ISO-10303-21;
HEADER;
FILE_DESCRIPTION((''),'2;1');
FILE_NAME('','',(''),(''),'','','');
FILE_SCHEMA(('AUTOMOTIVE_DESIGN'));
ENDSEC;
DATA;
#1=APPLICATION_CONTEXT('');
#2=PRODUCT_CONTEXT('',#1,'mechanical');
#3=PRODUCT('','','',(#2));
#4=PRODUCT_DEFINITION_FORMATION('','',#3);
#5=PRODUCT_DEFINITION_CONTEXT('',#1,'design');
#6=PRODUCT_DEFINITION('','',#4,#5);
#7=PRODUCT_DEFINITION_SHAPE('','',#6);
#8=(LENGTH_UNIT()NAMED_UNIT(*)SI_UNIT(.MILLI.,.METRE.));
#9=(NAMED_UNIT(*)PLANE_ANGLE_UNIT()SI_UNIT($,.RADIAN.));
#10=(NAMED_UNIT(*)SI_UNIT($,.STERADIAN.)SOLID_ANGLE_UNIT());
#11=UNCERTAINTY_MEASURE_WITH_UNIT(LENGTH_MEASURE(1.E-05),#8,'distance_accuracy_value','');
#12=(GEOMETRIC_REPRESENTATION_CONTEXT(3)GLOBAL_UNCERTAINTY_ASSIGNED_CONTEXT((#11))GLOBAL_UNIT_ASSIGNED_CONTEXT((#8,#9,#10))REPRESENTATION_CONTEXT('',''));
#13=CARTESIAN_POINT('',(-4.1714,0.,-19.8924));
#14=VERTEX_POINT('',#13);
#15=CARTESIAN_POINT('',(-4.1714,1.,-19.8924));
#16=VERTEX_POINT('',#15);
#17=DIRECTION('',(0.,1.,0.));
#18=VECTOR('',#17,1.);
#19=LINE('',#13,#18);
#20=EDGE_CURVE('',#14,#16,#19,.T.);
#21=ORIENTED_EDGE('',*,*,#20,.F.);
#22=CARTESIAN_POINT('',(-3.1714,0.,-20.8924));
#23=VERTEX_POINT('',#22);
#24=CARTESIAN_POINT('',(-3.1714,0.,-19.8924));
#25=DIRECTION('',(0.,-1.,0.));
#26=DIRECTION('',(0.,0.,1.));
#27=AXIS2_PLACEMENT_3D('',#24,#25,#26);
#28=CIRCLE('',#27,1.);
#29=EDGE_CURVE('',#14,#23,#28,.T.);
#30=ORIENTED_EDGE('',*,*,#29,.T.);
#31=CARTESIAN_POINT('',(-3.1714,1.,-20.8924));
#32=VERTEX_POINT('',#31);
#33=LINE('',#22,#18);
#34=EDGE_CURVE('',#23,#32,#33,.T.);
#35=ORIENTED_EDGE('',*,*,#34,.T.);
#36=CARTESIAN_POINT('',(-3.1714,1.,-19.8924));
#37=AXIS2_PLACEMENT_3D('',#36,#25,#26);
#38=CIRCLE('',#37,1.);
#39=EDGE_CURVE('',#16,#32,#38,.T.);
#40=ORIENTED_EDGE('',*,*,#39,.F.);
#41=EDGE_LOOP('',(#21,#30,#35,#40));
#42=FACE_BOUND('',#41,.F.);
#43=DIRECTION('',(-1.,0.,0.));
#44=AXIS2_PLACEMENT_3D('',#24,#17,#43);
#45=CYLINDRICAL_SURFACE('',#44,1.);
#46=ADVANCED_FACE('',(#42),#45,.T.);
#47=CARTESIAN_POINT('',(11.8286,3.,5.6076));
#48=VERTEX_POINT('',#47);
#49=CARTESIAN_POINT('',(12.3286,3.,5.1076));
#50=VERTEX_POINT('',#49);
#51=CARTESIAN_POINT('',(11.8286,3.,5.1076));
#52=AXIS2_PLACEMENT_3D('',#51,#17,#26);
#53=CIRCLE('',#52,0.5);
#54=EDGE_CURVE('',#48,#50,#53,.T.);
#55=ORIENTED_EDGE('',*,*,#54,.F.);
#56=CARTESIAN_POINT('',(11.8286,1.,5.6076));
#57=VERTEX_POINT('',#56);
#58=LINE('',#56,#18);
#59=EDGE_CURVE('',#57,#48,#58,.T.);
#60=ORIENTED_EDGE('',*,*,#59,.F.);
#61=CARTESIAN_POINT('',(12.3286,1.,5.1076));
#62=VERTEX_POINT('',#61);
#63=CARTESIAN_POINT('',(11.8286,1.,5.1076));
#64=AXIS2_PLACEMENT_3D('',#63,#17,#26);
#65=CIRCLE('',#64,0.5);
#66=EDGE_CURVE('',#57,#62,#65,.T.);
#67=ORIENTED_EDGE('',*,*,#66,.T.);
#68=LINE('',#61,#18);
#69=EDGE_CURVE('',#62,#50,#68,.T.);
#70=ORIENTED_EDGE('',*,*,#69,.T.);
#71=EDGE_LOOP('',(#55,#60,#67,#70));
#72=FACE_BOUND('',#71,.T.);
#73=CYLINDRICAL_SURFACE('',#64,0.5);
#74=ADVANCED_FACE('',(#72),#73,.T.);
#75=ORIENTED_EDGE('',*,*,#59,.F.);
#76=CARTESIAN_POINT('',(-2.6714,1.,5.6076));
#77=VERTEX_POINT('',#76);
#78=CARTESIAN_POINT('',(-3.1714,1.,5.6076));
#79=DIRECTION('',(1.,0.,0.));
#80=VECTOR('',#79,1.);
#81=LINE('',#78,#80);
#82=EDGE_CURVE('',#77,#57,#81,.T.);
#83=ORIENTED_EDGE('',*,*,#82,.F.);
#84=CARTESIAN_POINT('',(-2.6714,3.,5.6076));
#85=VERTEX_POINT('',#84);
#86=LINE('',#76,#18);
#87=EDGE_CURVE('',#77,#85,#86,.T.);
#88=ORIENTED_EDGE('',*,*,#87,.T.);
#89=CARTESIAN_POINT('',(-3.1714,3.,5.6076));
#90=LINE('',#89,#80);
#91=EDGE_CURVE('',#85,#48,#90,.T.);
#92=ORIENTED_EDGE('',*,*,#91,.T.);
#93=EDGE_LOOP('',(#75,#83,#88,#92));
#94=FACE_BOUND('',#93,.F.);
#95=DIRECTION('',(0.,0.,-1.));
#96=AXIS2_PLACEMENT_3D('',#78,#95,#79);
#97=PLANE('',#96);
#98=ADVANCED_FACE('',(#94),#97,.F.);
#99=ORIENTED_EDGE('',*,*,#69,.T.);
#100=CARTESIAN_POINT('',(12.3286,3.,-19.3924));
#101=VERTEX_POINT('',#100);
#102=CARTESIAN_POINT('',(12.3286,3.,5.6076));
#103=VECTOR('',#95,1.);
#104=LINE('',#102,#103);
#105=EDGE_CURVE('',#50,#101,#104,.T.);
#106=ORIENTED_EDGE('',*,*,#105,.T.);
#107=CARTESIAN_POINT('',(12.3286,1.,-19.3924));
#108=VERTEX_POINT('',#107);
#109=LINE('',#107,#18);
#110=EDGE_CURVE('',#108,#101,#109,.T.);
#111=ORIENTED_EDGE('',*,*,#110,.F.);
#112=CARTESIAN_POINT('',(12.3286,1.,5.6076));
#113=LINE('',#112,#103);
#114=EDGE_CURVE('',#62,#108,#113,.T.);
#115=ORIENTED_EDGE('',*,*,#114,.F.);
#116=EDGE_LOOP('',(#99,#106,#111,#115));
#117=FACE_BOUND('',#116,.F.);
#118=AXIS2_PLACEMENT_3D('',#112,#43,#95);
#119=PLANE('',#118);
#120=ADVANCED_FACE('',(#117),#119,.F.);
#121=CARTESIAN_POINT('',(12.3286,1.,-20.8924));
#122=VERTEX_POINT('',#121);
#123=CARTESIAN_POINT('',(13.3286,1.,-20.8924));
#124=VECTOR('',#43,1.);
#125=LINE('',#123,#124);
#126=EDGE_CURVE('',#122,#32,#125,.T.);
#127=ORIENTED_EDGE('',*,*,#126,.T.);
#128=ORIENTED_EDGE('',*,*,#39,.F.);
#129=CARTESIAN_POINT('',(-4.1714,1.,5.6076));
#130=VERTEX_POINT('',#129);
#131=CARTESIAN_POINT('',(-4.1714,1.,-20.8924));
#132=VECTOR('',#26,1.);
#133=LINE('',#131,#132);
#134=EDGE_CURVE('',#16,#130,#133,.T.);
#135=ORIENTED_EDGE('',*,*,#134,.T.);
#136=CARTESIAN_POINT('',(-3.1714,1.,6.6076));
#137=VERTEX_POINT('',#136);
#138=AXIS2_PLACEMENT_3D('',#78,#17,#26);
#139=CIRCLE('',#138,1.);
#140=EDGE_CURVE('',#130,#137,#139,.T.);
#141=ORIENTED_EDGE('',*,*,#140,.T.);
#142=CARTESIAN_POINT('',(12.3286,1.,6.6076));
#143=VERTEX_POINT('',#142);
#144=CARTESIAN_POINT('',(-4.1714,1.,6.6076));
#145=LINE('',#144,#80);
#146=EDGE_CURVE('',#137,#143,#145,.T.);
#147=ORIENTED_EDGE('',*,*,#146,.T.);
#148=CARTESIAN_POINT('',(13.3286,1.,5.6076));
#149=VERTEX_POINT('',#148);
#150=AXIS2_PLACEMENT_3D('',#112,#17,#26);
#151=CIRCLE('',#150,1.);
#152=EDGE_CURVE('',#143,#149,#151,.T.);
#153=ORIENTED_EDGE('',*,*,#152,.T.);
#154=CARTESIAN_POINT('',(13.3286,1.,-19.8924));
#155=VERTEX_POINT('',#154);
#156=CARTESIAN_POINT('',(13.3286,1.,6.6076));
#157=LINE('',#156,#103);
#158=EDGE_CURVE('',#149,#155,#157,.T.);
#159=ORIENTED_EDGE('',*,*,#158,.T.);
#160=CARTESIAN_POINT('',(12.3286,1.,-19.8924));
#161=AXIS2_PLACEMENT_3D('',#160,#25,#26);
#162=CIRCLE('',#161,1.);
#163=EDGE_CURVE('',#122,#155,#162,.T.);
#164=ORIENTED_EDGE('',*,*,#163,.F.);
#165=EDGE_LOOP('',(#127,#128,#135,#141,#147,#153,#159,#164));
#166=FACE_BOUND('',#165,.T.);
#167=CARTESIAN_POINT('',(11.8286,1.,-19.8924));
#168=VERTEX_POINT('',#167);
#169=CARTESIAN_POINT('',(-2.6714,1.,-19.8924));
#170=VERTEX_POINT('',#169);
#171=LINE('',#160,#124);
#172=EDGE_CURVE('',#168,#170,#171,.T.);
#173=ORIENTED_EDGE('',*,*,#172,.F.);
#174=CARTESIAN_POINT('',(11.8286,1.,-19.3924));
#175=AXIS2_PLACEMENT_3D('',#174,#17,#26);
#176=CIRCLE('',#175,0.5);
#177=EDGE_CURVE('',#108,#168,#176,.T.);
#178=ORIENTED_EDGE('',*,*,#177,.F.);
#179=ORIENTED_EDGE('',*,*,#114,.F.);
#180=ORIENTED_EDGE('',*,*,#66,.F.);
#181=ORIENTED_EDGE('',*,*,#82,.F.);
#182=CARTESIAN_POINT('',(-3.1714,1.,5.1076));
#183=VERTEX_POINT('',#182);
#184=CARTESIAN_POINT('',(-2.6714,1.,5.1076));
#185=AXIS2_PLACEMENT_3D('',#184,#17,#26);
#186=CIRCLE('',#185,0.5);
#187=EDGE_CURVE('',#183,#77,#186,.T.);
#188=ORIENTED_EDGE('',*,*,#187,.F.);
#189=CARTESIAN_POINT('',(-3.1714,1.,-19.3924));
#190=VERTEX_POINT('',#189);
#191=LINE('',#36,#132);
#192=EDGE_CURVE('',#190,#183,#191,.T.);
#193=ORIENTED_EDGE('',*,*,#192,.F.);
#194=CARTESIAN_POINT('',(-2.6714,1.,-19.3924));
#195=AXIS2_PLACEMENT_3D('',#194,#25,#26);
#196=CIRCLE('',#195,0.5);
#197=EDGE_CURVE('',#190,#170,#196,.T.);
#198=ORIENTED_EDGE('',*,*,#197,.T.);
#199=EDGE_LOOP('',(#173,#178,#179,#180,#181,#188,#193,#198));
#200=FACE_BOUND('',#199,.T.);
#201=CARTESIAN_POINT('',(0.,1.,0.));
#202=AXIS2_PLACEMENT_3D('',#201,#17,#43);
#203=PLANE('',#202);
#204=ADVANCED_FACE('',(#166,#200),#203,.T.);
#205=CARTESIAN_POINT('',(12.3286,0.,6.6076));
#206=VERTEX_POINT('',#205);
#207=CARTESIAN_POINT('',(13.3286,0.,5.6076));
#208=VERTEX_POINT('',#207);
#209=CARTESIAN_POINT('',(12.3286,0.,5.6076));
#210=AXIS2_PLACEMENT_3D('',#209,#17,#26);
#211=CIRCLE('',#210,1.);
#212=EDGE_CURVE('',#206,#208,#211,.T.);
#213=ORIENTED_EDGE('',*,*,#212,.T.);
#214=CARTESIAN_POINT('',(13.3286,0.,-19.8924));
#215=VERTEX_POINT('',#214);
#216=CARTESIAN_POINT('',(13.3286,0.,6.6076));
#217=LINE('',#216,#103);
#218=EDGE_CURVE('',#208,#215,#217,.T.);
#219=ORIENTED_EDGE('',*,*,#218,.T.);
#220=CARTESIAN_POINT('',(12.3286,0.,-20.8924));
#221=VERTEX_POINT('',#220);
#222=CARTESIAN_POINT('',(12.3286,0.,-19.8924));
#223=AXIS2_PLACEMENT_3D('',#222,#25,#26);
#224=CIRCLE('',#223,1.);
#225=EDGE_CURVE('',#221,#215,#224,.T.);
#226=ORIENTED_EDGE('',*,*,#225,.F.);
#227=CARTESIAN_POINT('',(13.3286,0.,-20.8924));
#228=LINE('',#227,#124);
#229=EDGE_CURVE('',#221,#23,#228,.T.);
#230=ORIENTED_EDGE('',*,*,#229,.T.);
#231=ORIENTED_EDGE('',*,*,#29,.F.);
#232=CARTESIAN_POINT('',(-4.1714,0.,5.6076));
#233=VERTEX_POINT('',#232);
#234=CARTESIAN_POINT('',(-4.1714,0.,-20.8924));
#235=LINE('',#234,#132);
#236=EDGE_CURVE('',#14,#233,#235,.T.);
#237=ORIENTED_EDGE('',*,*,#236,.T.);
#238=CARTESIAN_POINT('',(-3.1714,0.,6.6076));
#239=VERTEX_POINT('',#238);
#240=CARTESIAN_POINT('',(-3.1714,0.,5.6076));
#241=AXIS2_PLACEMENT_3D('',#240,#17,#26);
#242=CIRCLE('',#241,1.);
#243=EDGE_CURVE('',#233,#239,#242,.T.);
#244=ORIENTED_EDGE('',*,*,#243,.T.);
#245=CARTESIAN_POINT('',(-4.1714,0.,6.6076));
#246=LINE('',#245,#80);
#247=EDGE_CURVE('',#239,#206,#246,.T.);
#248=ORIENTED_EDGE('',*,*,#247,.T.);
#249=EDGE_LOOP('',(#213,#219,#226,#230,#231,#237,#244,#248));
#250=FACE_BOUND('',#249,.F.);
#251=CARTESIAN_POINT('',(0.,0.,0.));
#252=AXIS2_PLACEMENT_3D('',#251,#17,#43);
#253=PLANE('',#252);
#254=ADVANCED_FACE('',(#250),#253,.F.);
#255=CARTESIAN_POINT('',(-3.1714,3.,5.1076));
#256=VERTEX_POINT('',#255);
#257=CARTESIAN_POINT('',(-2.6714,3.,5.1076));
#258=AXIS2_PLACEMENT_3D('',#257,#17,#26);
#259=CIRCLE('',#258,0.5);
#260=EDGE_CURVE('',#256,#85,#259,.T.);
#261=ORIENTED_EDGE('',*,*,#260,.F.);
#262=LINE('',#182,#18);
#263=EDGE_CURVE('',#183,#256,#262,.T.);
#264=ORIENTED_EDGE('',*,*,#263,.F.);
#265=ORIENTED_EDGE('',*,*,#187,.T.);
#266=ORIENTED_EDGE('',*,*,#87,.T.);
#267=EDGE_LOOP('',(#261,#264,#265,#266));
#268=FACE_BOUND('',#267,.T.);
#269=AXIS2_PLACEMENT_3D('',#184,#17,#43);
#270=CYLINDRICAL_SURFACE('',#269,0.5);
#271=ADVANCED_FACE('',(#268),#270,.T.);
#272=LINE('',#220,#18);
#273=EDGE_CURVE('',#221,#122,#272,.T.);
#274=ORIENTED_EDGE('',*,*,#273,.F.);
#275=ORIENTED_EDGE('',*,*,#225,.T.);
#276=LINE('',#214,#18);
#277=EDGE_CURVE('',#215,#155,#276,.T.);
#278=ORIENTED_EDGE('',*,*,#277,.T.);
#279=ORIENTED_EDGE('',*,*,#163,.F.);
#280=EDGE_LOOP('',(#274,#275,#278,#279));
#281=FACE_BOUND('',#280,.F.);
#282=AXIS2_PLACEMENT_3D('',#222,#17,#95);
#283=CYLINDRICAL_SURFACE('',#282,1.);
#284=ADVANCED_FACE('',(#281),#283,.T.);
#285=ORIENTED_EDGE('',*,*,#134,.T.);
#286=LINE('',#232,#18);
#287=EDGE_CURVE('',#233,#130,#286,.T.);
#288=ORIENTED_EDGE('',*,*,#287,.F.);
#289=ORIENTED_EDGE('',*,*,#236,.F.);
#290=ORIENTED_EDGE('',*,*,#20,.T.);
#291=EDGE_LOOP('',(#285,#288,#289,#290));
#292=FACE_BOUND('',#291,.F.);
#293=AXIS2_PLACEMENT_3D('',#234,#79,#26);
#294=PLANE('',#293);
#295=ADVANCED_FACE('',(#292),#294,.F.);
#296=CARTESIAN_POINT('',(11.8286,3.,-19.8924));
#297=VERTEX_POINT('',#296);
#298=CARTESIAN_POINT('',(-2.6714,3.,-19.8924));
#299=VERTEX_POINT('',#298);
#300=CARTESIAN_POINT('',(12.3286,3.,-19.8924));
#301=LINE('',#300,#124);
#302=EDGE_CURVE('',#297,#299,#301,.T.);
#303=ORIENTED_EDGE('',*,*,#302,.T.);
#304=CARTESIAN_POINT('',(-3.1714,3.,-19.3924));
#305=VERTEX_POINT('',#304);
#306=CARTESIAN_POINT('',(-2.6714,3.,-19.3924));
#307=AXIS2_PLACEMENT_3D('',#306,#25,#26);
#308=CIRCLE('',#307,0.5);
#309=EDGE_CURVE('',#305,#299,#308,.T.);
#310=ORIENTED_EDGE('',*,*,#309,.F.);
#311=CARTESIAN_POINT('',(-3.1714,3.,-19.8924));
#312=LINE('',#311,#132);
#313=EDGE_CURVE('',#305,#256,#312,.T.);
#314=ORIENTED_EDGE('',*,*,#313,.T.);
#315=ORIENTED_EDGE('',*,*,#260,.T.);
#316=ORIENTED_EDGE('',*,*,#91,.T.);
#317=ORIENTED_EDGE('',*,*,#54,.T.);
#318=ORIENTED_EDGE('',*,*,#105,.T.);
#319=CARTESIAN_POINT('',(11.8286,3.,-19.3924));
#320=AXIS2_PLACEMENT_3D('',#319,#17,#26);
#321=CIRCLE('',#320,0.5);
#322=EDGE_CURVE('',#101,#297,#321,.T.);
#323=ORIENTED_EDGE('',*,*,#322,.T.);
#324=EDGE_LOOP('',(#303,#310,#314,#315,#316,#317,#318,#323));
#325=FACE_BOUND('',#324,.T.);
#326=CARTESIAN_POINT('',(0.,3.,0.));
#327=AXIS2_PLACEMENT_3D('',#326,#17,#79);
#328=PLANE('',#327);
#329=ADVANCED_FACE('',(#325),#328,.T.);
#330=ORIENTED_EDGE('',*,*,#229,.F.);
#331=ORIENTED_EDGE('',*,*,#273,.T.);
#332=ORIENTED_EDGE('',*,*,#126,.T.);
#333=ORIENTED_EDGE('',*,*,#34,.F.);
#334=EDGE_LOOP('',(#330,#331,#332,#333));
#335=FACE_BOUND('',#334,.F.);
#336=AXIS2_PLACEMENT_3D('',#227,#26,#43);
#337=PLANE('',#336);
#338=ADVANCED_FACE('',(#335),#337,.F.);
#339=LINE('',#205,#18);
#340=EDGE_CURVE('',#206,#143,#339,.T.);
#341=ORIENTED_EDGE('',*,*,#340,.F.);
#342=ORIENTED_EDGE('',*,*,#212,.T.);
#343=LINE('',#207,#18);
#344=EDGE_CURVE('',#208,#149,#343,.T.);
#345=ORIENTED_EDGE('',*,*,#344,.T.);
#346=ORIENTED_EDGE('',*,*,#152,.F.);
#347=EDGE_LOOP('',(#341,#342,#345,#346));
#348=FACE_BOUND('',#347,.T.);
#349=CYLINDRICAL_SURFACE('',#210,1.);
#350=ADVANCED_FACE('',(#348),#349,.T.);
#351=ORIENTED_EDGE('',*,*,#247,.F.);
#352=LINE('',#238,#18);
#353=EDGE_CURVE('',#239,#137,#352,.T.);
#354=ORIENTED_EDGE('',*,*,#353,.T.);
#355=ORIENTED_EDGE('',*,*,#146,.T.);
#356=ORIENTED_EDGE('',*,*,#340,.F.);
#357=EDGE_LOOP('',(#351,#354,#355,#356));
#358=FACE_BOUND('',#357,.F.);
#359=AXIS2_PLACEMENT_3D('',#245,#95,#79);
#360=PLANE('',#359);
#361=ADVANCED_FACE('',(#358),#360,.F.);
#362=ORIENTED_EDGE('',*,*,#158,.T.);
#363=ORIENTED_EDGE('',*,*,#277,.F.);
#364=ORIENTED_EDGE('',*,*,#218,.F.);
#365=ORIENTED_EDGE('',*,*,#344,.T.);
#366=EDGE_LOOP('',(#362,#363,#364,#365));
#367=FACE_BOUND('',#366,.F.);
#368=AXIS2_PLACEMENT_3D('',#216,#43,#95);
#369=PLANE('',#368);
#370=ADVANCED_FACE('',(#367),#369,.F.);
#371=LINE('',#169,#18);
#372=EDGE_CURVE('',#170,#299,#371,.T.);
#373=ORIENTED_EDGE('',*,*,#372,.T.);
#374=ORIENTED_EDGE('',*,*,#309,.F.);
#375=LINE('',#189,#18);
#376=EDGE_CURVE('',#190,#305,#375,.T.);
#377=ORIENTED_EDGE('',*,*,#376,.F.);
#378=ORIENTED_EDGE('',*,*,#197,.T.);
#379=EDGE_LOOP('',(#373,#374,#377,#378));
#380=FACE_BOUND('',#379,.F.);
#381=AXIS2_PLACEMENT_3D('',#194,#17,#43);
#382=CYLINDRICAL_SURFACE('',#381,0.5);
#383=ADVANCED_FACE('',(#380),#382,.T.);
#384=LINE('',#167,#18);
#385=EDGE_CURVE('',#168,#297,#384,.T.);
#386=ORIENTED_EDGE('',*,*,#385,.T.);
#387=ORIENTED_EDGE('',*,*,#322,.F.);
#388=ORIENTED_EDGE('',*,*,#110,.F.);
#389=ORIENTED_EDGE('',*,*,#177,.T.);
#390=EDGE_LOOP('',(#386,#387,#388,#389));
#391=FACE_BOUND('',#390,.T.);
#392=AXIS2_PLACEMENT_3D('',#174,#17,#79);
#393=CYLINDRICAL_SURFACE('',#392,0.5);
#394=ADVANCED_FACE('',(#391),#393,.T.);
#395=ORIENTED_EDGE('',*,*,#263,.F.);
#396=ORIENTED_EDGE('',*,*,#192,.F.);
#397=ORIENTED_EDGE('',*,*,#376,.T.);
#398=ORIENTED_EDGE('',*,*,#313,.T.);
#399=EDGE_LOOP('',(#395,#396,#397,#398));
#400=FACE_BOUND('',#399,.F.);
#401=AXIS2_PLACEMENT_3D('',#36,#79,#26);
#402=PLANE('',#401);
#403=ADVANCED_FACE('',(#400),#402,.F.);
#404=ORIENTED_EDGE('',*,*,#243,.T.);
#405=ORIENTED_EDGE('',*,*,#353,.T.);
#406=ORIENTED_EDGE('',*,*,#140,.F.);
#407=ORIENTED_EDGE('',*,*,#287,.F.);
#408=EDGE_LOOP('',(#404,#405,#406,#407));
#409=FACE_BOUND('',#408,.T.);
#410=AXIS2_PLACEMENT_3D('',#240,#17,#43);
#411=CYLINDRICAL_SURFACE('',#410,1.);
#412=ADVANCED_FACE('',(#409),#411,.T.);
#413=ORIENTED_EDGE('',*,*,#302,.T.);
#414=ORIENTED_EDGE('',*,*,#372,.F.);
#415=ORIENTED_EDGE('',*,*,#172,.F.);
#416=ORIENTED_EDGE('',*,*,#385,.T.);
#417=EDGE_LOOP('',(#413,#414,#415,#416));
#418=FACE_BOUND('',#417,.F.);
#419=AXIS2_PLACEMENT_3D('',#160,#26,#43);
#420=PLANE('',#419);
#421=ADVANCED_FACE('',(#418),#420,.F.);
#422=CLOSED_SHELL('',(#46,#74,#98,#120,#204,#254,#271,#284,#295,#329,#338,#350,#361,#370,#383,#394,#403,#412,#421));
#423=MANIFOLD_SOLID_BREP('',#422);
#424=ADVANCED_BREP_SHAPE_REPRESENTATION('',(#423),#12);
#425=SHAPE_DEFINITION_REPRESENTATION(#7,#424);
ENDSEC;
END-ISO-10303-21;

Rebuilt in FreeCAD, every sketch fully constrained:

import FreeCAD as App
import Part
import Sketcher

V = App.Vector
Q = App.Units.Quantity


def edges_at(feature, points):
    """Names of the edges that pass closest to the given points."""
    edges = feature.Shape.Edges
    near = lambda p: min(range(len(edges)), key=lambda i: edges[i].distToShape(Part.Vertex(*p))[0])
    return sorted({f"Edge{near(p) + 1}" for p in points})


def add_polygon(sketch, points):
    """Adds a closed chain of lines whose ends are joined by coincident constraints."""
    first, n = sketch.GeometryCount, len(points)
    for a, b in zip(points, points[1:] + points[:1]):
        sketch.addGeometry(Part.LineSegment(App.Vector(*a, 0), App.Vector(*b, 0)), False)
    for i in range(n):
        sketch.addConstraint(Sketcher.Constraint("Coincident", first + i, 2, first + (i + 1) % n, 1))

doc = App.newDocument("Part")
body = doc.addObject("PartDesign::Body", "Body")

# Sketch on XZ plane
sketch1 = body.newObject("Sketcher::SketchObject", "Sketch")
sketch1.AttachmentSupport = (doc.getObject("XZ_Plane"), [""])
sketch1.MapMode = "FlatFace"
add_polygon(sketch1, [(-4, -21), (-4, 7), (13, 7), (13, -21)])  # lines 0-3
sketch1.addConstraint([
    Sketcher.Constraint("Vertical", 0),
    Sketcher.Constraint("Horizontal", 1),
    Sketcher.Constraint("Vertical", 2),
    Sketcher.Constraint("Horizontal", 3),
    Sketcher.Constraint("DistanceX", 1, 1, 1, 2, Q("17.5 mm")),
    Sketcher.Constraint("DistanceY", 0, 1, 0, 2, Q("27.5 mm")),
    Sketcher.Constraint("DistanceX", 0, 2, -1, 1, Q("4.1714 mm")),
    Sketcher.Constraint("DistanceY", -1, 1, 0, 2, Q("6.6076 mm")),
])
pad1 = body.newObject("PartDesign::Pad", "Pad")
pad1.Profile = sketch1
pad1.Length = 1
pad1.Reversed = True

# Sketch on XZ plane
sketch2 = body.newObject("Sketcher::SketchObject", "Sketch001")
sketch2.AttachmentSupport = (doc.getObject("XZ_Plane"), [""])
sketch2.MapMode = "FlatFace"
sketch2.AttachmentOffset = App.Placement(V(0, 0, -1), App.Rotation())
add_polygon(sketch2, [(-3, -20), (-3, 6), (12, 6), (12, -20)])  # lines 0-3
sketch2.addConstraint([
    Sketcher.Constraint("Vertical", 0),
    Sketcher.Constraint("Horizontal", 1),
    Sketcher.Constraint("Vertical", 2),
    Sketcher.Constraint("Horizontal", 3),
    Sketcher.Constraint("DistanceX", 1, 1, 1, 2, Q("15.5 mm")),
    Sketcher.Constraint("DistanceY", 0, 1, 0, 2, Q("25.5 mm")),
    Sketcher.Constraint("DistanceX", 0, 2, -1, 1, Q("3.1714 mm")),
    Sketcher.Constraint("DistanceY", -1, 1, 0, 2, Q("5.6076 mm")),
])
pad2 = body.newObject("PartDesign::Pad", "Pad001")
pad2.Profile = sketch2
pad2.Length = 2
pad2.Reversed = True
doc.recompute()

fillet = body.newObject("PartDesign::Fillet", "Fillet")
fillet.Base = (pad2, edges_at(pad2, [
    (-4.171, 0.5, -20.892),
    (-4.171, 0.5, 6.608),
    (13.329, 0.5, 6.608),
    (13.329, 0.5, -20.892),
]))
fillet.Radius = 1
doc.recompute()

fillet2 = body.newObject("PartDesign::Fillet", "Fillet001")
fillet2.Base = (fillet, edges_at(fillet, [
    (12.329, 2, -19.892),
    (12.329, 2, 5.608),
    (-3.171, 2, -19.892),
    (-3.171, 2, 5.608),
]))
fillet2.Radius = 0.5

doc.recompute()
